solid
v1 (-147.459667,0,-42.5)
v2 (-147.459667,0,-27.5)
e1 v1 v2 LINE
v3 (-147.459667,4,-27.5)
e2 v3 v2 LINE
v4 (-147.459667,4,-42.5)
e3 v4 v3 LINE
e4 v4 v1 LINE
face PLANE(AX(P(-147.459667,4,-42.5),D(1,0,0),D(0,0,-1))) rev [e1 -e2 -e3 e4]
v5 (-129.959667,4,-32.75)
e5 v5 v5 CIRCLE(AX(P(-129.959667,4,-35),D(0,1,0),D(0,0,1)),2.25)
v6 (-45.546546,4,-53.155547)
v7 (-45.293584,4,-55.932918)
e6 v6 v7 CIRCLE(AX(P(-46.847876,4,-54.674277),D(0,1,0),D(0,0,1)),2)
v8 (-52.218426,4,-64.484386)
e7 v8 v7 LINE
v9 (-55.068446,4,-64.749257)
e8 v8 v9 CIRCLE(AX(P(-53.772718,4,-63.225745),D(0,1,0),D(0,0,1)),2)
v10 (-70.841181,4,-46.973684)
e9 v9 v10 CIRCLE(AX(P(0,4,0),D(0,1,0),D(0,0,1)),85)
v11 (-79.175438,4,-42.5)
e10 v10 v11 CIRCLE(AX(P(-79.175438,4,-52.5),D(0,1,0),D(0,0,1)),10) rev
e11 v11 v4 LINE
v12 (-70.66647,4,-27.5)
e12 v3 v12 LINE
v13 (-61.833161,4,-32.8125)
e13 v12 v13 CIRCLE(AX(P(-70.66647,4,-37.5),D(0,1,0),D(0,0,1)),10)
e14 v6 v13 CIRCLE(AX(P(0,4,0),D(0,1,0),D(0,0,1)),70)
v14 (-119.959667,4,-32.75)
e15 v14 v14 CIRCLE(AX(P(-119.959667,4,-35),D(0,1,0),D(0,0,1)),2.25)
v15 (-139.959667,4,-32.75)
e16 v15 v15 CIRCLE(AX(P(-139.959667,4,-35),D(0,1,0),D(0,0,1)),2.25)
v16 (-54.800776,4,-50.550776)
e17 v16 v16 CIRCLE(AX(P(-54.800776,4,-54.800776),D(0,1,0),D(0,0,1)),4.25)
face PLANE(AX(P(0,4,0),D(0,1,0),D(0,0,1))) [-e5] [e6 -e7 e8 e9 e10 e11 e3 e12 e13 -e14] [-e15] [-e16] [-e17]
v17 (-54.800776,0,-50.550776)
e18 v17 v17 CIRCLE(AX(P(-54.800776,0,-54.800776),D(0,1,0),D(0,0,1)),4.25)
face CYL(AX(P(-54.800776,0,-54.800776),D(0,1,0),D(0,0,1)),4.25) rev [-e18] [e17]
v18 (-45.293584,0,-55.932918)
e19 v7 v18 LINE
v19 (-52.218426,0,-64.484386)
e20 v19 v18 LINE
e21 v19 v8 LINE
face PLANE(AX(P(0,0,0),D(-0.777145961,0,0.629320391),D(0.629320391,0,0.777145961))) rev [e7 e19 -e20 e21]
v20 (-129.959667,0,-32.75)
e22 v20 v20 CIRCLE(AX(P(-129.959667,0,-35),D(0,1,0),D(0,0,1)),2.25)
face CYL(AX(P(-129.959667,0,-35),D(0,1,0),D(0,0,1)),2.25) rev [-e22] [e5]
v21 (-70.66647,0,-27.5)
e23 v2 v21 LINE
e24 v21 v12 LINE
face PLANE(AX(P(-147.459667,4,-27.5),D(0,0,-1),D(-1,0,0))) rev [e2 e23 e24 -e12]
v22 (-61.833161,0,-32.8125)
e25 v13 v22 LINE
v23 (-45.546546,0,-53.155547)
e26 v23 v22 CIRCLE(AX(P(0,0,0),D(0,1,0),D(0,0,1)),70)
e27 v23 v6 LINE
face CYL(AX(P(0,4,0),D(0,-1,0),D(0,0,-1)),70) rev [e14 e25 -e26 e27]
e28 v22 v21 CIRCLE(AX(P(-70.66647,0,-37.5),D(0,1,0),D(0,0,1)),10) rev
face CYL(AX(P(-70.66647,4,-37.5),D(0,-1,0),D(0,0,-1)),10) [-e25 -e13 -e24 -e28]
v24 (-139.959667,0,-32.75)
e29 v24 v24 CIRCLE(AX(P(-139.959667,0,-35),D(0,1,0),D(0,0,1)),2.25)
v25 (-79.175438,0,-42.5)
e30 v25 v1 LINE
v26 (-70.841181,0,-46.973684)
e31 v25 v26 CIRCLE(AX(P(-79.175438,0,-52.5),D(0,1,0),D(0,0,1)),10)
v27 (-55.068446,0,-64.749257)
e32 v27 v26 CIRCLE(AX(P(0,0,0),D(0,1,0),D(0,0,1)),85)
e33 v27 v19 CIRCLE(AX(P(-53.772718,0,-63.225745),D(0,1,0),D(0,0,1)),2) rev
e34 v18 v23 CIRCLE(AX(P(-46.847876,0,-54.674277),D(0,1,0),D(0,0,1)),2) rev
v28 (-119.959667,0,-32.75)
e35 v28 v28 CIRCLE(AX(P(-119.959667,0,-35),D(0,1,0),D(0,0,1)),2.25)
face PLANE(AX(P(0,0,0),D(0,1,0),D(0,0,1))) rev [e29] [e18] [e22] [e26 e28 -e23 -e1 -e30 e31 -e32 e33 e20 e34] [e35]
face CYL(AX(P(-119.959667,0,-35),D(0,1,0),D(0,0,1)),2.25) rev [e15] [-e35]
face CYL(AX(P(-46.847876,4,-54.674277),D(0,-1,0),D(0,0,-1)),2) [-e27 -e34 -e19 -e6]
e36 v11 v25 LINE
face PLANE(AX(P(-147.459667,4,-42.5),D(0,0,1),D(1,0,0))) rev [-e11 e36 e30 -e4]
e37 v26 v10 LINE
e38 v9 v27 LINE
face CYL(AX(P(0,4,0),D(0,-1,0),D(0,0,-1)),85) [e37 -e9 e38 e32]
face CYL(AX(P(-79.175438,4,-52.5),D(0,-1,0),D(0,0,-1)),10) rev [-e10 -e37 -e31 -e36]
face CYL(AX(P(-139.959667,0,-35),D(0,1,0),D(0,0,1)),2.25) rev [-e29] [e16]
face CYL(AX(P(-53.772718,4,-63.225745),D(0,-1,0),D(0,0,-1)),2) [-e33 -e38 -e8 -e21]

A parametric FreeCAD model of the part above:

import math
import FreeCAD as App
import Part
import Sketcher
from FreeCAD import Vector
Q = App.Units.Quantity


def edges_at(feature, points):
    """Names of the edges that pass closest to the given points."""
    edges = feature.Shape.Edges
    near = lambda p: min(range(len(edges)), key=lambda i: edges[i].distToShape(Part.Vertex(*p))[0])
    return sorted({f"Edge{near(p) + 1}" for p in points})

doc = App.newDocument("Part")
body = doc.addObject("PartDesign::Body", "Body")

# Sketch on XZ plane
sketch1 = body.newObject("Sketcher::SketchObject", "Sketch")
sketch1.AttachmentSupport = (doc.getObject("XZ_Plane"), [""])
sketch1.MapMode = "FlatFace"
sketch1.addGeometry(Part.Circle(Vector(0, 0, 0), Vector(0, 0, 1), 85), False)
sketch1.addConstraint([
    Sketcher.Constraint("Coincident", 0, 3, -1, 1),
    Sketcher.Constraint("Diameter", 0, 170.0),
])
pad1 = body.newObject("PartDesign::Pad", "Pad")
pad1.Profile = sketch1
pad1.Length = 4
pad1.Reversed = True

# Sketch on XZ plane
sketch2 = body.newObject("Sketcher::SketchObject", "Sketch001")
sketch2.AttachmentSupport = (doc.getObject("XZ_Plane"), [""])
sketch2.MapMode = "FlatFace"
sketch2.AttachmentOffset = App.Placement(Vector(0, 0, -4), App.Rotation())
sketch2.addGeometry(Part.Circle(Vector(-54.8, -54.8, 0), Vector(0, 0, 1), 4.2), False)
sketch2.addConstraint([
    Sketcher.Constraint("Diameter", 0, 8.5),
    Sketcher.Constraint("DistanceX", 0, 3, -1, 1, 54.800776),
    Sketcher.Constraint("DistanceY", 0, 3, -1, 1, 54.800776),
])
pocket1 = body.newObject("PartDesign::Pocket", "Pocket")
pocket1.Profile = sketch2
pocket1.Type = "ThroughAll"
pocket1.Reversed = True

# Sketch on XZ plane
sketch3 = body.newObject("Sketcher::SketchObject", "Sketch002")
sketch3.AttachmentSupport = (doc.getObject("XZ_Plane"), [""])
sketch3.MapMode = "FlatFace"
sketch3.AttachmentOffset = App.Placement(Vector(0, 0, -4), App.Rotation())
sketch3.addGeometry([
    Part.LineSegment(Vector(0, 0, 0), Vector(-85, 0, 0)),
    Part.ArcOfCircle(Part.Circle(Vector(0, 0, 0), Vector(0, 0, 1), 85), math.radians(-129), math.radians(180)),
    Part.LineSegment(Vector(-53, -66, 0), Vector(0, 0, 0)),
], False)
sketch3.addConstraint([
    Sketcher.Constraint("Coincident", 0, 2, 1, 2),
    Sketcher.Constraint("Coincident", 1, 1, 2, 1),
    Sketcher.Constraint("Coincident", 2, 2, 0, 1),
    Sketcher.Constraint("Horizontal", 0),
    Sketcher.Constraint("Coincident", 1, 3, -1, 1),
    Sketcher.Constraint("Coincident", 2, 2, -1, 1),
    Sketcher.Constraint("Radius", 1, 85.0),
    Sketcher.Constraint("Angle", 2, Q("51 deg")),
])
pocket2 = body.newObject("PartDesign::Pocket", "Pocket001")
pocket2.Profile = sketch3
pocket2.Type = "ThroughAll"
pocket2.Reversed = True

# Sketch on XZ plane
sketch4 = body.newObject("Sketcher::SketchObject", "Sketch003")
sketch4.AttachmentSupport = (doc.getObject("XZ_Plane"), [""])
sketch4.MapMode = "FlatFace"
sketch4.addGeometry([
    Part.LineSegment(Vector(-96, -35, 0), Vector(-96, 35, 0)),
    Part.LineSegment(Vector(-96, 35, 0), Vector(-53, 35, 0)),
    Part.LineSegment(Vector(-53, 35, 0), Vector(-53, -35, 0)),
    Part.LineSegment(Vector(-53, -35, 0), Vector(-96, -35, 0)),
], False)
sketch4.addConstraint([
    Sketcher.Constraint("Coincident", 0, 2, 1, 1),
    Sketcher.Constraint("Coincident", 1, 2, 2, 1),
    Sketcher.Constraint("Coincident", 2, 2, 3, 1),
    Sketcher.Constraint("Coincident", 3, 2, 0, 1),
    Sketcher.Constraint("Vertical", 0),
    Sketcher.Constraint("Horizontal", 1),
    Sketcher.Constraint("Vertical", 2),
    Sketcher.Constraint("Horizontal", 3),
    Sketcher.Constraint("DistanceY", 0, 1, 0, 2, 70.0),
    Sketcher.Constraint("DistanceY", -1, 1, 0, 2, 35.0),
    Sketcher.Constraint("DistanceX", 1, 1, 1, 2, 42.180521),
    Sketcher.Constraint("DistanceX", 0, 2, -1, 1, 95.591607),
])
pocket3 = body.newObject("PartDesign::Pocket", "Pocket002")
pocket3.Profile = sketch4
pocket3.Type = "ThroughAll"

# Sketch on XZ plane
sketch5 = body.newObject("Sketcher::SketchObject", "Sketch004")
sketch5.AttachmentSupport = (doc.getObject("XZ_Plane"), [""])
sketch5.MapMode = "FlatFace"
sketch5.addGeometry([
    Part.LineSegment(Vector(-147, -42, 0), Vector(-147, -28, 0)),
    Part.LineSegment(Vector(-147, -28, 0), Vector(-41, -28, 0)),
    Part.LineSegment(Vector(-41, -28, 0), Vector(-41, -42, 0)),
    Part.LineSegment(Vector(-41, -42, 0), Vector(-147, -42, 0)),
], False)
sketch5.addConstraint([
    Sketcher.Constraint("Coincident", 0, 2, 1, 1),
    Sketcher.Constraint("Coincident", 1, 2, 2, 1),
    Sketcher.Constraint("Coincident", 2, 2, 3, 1),
    Sketcher.Constraint("Coincident", 3, 2, 0, 1),
    Sketcher.Constraint("Vertical", 0),
    Sketcher.Constraint("Horizontal", 1),
    Sketcher.Constraint("Vertical", 2),
    Sketcher.Constraint("Horizontal", 3),
    Sketcher.Constraint("DistanceY", 0, 1, 0, 2, 15.0),
    Sketcher.Constraint("DistanceY", 0, 2, -1, 1, 27.5),
    Sketcher.Constraint("DistanceX", 1, 1, 1, 2, 106.727453),
    Sketcher.Constraint("DistanceX", 0, 2, -1, 1, 147.459667),
])
pad2 = body.newObject("PartDesign::Pad", "Pad001")
pad2.Profile = sketch5
pad2.Length = 4
pad2.Reversed = True

# Sketch on XZ plane
sketch6 = body.newObject("Sketcher::SketchObject", "Sketch005")
sketch6.AttachmentSupport = (doc.getObject("XZ_Plane"), [""])
sketch6.MapMode = "FlatFace"
sketch6.addGeometry(Part.Circle(Vector(0, 0, 0), Vector(0, 0, 1), 70), False)
sketch6.addConstraint([
    Sketcher.Constraint("Coincident", 0, 3, -1, 1),
    Sketcher.Constraint("Diameter", 0, 140.0),
])
pocket4 = body.newObject("PartDesign::Pocket", "Pocket003")
pocket4.Profile = sketch6
pocket4.Type = "ThroughAll"

# Sketch on XZ plane
sketch7 = body.newObject("Sketcher::SketchObject", "Sketch006")
sketch7.AttachmentSupport = (doc.getObject("XZ_Plane"), [""])
sketch7.MapMode = "FlatFace"
sketch7.AttachmentOffset = App.Placement(Vector(0, 0, -4), App.Rotation())
sketch7.addGeometry(Part.Circle(Vector(-140, -35, 0), Vector(0, 0, 1), 2.2), False)
sketch7.addConstraint([
    Sketcher.Constraint("Diameter", 0, 4.5),
    Sketcher.Constraint("DistanceY", 0, 3, -1, 1, 35.0),
    Sketcher.Constraint("DistanceX", 0, 3, -1, 1, 139.959667),
])
pocket5 = body.newObject("PartDesign::Pocket", "Pocket004")
pocket5.Profile = sketch7
pocket5.Type = "ThroughAll"
pocket5.Reversed = True
doc.recompute()

linearpattern = body.newObject("PartDesign::LinearPattern", "LinearPattern")
linearpattern.Originals = [pocket5]
linearpattern.Direction = (doc.getObject("X_Axis"), [""])
linearpattern.Mode = "offset"
linearpattern.Offset = 10
linearpattern.Occurrences = 3
body.Tip = linearpattern
doc.recompute()

fillet = body.newObject("PartDesign::Fillet", "Fillet")
fillet.Base = (linearpattern, edges_at(linearpattern, [(-73.612, 2, -42.5), (-64.372, 2, -27.5)]))
fillet.Radius = 10
doc.recompute()

fillet2 = body.newObject("PartDesign::Fillet", "Fillet001")
fillet2.Base = (fillet, edges_at(fillet, [(-53.492, 2, -66.057), (-44.052, 2, -54.4)]))
fillet2.Radius = 2

doc.recompute()
